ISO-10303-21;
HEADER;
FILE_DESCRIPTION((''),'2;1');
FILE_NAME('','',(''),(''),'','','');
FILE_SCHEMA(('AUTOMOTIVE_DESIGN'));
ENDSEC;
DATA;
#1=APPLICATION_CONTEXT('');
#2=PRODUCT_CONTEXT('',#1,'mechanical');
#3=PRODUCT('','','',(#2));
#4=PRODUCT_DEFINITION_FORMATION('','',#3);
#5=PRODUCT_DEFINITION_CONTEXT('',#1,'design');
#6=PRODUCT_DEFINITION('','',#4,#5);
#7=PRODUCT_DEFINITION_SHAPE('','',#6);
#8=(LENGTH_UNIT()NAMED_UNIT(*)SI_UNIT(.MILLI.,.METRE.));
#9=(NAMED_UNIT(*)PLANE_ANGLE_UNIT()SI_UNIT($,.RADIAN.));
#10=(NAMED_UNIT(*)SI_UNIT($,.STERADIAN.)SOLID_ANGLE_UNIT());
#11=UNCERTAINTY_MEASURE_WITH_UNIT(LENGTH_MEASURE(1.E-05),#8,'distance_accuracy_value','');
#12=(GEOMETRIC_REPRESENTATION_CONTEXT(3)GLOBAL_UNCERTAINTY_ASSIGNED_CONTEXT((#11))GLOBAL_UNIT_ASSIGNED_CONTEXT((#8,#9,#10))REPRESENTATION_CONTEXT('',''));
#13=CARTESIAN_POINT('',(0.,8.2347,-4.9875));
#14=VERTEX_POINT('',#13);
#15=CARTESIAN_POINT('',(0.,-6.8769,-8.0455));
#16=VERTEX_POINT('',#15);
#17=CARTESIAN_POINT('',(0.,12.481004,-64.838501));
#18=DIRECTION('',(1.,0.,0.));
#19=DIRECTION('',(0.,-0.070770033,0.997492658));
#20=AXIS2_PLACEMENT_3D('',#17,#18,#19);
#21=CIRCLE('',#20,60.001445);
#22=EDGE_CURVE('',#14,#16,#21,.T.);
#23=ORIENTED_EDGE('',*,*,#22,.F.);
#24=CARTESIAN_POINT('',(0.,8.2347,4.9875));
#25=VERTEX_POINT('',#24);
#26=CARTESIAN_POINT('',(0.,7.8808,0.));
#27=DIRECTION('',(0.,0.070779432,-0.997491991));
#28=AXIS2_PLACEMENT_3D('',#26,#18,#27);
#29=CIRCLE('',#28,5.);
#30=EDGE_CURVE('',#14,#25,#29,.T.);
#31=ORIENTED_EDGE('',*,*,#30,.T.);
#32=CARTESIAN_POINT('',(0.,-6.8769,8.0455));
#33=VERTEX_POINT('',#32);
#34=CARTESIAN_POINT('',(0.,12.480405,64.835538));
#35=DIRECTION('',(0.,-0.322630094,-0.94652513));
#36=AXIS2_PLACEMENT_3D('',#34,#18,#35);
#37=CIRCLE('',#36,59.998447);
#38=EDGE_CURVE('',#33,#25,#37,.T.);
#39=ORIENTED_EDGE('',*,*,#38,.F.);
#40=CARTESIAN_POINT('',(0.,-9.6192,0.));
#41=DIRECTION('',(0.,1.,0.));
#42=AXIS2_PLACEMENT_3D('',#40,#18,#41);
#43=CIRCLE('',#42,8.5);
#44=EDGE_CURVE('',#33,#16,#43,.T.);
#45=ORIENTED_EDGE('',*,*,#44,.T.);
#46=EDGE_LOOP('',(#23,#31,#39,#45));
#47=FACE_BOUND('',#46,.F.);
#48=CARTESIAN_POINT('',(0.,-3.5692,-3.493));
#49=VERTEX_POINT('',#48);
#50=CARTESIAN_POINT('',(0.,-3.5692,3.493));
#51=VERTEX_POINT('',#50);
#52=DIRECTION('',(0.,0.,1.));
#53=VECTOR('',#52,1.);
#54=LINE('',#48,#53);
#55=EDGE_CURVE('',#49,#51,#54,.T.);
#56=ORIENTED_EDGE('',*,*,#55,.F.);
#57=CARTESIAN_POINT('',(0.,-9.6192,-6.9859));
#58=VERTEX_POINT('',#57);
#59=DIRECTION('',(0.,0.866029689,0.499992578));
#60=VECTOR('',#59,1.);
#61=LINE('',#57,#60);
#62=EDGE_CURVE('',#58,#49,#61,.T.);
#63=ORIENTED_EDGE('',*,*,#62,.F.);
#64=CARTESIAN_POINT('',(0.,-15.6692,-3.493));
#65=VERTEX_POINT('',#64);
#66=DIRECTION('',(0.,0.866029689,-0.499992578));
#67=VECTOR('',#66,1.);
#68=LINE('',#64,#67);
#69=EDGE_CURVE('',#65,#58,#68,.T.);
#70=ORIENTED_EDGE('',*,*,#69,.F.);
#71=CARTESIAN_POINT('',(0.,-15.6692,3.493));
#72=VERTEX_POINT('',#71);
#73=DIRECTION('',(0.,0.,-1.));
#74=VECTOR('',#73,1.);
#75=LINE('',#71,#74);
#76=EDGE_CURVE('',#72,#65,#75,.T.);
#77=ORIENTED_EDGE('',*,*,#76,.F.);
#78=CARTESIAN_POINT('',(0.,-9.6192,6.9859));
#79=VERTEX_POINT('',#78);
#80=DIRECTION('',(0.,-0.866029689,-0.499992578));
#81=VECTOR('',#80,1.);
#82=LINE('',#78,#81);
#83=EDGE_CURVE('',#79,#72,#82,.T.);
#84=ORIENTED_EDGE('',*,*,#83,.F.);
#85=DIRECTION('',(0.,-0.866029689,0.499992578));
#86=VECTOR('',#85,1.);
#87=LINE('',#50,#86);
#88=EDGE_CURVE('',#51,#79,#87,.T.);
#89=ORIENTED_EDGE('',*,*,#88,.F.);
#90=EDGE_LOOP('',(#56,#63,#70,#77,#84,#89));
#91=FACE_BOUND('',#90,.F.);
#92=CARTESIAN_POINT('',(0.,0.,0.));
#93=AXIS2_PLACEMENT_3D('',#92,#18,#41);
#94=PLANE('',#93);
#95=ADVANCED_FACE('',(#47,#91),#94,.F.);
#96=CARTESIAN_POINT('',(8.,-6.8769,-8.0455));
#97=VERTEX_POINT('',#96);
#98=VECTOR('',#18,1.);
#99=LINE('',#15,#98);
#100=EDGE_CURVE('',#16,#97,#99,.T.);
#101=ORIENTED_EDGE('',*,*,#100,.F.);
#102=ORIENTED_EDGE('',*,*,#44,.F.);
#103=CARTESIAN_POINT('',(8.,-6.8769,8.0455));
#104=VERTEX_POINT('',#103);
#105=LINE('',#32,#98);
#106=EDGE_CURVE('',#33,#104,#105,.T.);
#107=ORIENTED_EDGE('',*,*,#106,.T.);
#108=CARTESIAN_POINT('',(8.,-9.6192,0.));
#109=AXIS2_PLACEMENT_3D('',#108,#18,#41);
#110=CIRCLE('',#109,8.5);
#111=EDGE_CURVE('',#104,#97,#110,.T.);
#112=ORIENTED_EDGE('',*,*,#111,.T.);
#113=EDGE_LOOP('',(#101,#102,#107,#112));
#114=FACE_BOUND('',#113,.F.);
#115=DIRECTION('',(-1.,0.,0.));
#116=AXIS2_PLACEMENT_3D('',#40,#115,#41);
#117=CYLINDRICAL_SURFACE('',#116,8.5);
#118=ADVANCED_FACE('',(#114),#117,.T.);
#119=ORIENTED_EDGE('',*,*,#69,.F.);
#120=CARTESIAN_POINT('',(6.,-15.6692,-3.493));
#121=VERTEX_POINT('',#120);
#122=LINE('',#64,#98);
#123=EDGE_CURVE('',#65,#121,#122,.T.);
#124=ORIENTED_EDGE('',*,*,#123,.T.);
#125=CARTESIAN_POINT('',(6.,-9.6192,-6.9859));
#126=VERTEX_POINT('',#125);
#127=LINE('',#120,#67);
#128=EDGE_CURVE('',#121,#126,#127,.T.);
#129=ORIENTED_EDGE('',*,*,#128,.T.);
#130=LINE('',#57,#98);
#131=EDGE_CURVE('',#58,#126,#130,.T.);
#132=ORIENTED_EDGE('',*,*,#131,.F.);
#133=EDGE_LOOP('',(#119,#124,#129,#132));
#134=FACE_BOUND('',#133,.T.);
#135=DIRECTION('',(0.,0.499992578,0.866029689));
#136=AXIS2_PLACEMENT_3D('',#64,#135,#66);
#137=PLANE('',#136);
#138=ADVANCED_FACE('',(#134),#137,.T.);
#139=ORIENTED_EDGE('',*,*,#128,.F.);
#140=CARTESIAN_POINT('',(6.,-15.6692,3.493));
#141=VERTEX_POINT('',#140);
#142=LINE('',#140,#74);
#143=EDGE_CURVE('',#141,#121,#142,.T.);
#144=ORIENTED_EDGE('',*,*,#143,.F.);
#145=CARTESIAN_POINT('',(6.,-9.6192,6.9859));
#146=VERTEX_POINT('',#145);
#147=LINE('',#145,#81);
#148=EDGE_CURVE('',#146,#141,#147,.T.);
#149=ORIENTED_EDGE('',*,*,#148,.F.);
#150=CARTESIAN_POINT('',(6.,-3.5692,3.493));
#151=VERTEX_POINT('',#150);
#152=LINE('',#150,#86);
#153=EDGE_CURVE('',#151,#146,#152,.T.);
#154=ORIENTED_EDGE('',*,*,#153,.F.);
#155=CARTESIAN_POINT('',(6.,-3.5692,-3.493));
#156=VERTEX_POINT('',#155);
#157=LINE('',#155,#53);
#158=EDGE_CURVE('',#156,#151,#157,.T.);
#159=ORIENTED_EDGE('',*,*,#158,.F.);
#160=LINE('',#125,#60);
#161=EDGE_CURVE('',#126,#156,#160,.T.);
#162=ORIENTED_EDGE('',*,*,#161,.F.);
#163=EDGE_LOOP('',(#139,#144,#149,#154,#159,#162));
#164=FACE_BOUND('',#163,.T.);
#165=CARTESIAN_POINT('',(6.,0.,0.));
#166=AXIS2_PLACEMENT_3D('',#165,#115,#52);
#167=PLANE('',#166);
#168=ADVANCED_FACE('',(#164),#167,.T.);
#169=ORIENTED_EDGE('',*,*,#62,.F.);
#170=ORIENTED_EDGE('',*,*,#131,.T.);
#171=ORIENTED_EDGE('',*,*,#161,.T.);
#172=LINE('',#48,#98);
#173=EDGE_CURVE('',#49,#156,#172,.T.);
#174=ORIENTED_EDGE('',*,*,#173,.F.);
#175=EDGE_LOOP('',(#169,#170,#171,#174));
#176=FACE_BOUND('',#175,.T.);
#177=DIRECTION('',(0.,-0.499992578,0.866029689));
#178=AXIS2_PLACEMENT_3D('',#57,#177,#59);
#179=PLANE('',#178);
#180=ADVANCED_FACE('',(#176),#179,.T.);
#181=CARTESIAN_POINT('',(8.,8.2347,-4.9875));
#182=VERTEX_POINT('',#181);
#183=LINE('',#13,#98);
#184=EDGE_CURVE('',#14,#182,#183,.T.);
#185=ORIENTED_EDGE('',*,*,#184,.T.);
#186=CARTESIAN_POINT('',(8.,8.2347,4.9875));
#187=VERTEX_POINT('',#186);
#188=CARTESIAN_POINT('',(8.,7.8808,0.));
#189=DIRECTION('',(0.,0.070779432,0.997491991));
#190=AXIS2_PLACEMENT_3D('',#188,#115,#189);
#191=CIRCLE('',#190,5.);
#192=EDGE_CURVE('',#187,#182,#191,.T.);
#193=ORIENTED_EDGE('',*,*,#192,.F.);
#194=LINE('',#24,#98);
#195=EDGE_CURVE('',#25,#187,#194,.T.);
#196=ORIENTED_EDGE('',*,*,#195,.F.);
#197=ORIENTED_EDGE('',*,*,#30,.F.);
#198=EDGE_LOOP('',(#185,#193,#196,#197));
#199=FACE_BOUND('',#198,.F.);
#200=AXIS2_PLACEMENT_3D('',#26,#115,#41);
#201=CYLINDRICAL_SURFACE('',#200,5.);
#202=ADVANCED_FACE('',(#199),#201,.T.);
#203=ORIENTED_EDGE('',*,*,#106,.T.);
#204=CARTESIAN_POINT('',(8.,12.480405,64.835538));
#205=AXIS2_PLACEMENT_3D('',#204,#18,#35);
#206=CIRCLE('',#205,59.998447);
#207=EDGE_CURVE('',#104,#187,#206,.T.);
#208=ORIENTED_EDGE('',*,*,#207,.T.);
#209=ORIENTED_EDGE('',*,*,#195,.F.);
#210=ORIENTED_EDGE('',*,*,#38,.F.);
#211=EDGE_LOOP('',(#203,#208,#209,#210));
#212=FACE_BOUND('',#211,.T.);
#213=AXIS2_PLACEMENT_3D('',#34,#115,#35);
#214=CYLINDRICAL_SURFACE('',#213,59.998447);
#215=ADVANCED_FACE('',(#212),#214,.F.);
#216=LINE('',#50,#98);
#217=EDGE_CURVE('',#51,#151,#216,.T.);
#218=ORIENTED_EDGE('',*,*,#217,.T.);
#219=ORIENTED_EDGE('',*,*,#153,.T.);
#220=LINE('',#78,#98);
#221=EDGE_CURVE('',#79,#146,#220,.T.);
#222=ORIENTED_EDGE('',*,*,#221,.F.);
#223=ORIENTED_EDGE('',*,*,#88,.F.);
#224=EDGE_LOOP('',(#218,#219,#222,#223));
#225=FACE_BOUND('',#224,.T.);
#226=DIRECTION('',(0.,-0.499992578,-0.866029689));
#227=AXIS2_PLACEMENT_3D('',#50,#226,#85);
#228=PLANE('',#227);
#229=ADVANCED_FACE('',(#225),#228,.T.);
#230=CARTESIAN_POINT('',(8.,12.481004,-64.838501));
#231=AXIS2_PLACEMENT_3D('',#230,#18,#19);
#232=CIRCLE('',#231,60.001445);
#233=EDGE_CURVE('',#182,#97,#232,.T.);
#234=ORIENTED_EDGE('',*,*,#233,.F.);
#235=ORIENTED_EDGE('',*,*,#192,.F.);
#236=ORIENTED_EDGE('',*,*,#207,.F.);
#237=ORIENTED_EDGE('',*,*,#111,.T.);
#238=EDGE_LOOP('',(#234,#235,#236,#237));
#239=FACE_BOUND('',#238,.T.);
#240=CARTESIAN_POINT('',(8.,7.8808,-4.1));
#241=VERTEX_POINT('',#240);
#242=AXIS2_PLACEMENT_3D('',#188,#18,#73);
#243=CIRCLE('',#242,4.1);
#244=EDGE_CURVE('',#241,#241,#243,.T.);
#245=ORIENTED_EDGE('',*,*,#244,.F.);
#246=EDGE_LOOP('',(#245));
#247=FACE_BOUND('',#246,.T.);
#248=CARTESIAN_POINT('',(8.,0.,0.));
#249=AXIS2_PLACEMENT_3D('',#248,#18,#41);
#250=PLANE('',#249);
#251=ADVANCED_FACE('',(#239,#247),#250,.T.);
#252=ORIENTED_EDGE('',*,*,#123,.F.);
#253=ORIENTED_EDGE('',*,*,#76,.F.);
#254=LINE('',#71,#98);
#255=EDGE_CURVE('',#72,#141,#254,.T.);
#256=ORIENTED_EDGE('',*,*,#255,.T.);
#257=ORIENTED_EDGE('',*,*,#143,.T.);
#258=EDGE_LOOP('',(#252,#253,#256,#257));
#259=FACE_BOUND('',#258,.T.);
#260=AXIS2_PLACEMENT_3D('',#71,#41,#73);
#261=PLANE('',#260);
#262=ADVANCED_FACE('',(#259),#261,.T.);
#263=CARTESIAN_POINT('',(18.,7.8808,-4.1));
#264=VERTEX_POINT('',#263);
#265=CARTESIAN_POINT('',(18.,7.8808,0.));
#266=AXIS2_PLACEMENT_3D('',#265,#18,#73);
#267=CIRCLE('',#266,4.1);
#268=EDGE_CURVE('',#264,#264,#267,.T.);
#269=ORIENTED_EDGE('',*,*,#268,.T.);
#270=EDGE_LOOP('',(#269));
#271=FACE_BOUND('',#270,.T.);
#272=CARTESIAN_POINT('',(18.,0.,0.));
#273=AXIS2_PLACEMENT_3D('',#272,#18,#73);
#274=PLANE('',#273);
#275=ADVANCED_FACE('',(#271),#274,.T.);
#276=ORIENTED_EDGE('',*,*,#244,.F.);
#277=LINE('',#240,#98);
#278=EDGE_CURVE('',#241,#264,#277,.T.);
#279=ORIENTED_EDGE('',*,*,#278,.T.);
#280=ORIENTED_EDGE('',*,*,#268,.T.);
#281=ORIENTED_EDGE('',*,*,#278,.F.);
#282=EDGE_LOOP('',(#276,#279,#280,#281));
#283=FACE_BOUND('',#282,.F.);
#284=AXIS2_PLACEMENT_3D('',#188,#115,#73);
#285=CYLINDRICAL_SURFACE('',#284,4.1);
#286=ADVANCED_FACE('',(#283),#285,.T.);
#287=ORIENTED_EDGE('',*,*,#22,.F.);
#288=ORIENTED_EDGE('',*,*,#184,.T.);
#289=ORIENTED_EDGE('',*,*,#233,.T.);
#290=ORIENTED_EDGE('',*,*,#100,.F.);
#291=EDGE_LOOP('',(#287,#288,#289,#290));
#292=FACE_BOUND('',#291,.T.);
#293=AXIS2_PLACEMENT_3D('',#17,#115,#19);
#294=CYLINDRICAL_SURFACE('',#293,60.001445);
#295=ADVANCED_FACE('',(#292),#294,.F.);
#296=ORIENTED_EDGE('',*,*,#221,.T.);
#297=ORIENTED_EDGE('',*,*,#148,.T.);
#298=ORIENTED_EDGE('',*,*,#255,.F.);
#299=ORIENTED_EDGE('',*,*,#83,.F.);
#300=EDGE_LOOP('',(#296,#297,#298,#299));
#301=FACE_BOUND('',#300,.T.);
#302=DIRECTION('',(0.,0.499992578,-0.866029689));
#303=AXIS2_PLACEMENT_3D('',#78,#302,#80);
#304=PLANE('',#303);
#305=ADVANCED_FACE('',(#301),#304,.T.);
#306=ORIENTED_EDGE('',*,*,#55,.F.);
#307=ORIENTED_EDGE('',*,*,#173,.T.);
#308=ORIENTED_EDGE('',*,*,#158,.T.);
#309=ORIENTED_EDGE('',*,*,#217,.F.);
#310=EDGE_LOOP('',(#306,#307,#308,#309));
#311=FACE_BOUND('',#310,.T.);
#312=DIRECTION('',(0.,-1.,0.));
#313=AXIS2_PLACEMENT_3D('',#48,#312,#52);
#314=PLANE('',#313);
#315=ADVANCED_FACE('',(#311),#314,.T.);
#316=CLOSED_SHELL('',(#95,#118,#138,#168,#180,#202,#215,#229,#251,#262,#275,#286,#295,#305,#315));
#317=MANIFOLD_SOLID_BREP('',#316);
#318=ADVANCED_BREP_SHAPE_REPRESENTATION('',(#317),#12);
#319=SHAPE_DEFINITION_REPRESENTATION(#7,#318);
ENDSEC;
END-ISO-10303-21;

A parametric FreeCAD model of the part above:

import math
import FreeCAD as App
import Part
import Sketcher
from FreeCAD import Vector
Q = App.Units.Quantity

doc = App.newDocument("Part")
body = doc.addObject("PartDesign::Body", "Body")

sketch1 = body.newObject("Sketcher::SketchObject", "Sketch")
sketch1.AttachmentSupport = (doc.getObject("YZ_Plane"), [""])
sketch1.MapMode = "FlatFace"
sketch1.addGeometry([
    Part.ArcOfCircle(Part.Circle(Vector(7.8808, 0, 0), Vector(0, 0, 1), 5), math.radians(-85.941244), math.radians(85.941244)),
    Part.ArcOfCircle(Part.Circle(Vector(12.480405, 64.835538, 0), Vector(0, 0, 1), 59.998447), math.radians(-108.822057), math.radians(-94.057846)),
    Part.ArcOfCircle(Part.Circle(Vector(-9.6192, 0, 0), Vector(0, 0, 1), 8.5), math.radians(71.178379), math.radians(288.821621)),
    Part.ArcOfCircle(Part.Circle(Vector(12.481004, -64.838501, 0), Vector(0, 0, 1), 60.001445), math.radians(94.058217), math.radians(108.821686)),
], False)
sketch1.addConstraint([
    Sketcher.Constraint("Coincident", 0, 2, 1, 2),
    Sketcher.Constraint("Coincident", 1, 1, 2, 1),
    Sketcher.Constraint("Coincident", 2, 2, 3, 2),
    Sketcher.Constraint("Coincident", 3, 1, 0, 1),
    Sketcher.Constraint("PointOnObject", 0, 3, -1),
    Sketcher.Constraint("PointOnObject", 2, 3, -1),
    Sketcher.Constraint("Radius", 0, Q("5 mm")),
    Sketcher.Constraint("Radius", 2, Q("8.5 mm")),
    Sketcher.Constraint("DistanceX", 2, 3, 0, 3, Q("17.5 mm")),
    Sketcher.Constraint("Radius", 1, Q("59.9984 mm")),
    Sketcher.Constraint("Radius", 3, Q("60.0014 mm")),
    Sketcher.Constraint("DistanceY", 1, 1, 1, 3, Q("56.79 mm")),
    Sketcher.Constraint("DistanceX", -1, 1, 3, 3, Q("12.481 mm")),
    Sketcher.Constraint("DistanceX", 2, 2, -1, 1, Q("6.877 mm")),
    Sketcher.Constraint("DistanceX", 0, 3, 0, 2, Q("0.354 mm")),
    Sketcher.Constraint("DistanceX", 0, 3, 3, 1, Q("0.354 mm")),
])
pad1 = body.newObject("PartDesign::Pad", "Pad")
pad1.Profile = sketch1
pad1.Length = 8

sketch2 = body.newObject("Sketcher::SketchObject", "Sketch001")
sketch2.AttachmentSupport = (doc.getObject("YZ_Plane"), [""])
sketch2.MapMode = "FlatFace"
sketch2.AttachmentOffset = App.Placement(Vector(0, 0, 8), App.Rotation())
sketch2.addGeometry(Part.Circle(Vector(7.8808, 0, 0), Vector(0, 0, 1), 4.1), False)
sketch2.addConstraint([
    Sketcher.Constraint("PointOnObject", 0, 3, -1),
    Sketcher.Constraint("Diameter", 0, Q("8.2 mm")),
    Sketcher.Constraint("DistanceX", -1, 1, 0, 3, Q("7.8808 mm")),
])
pad2 = body.newObject("PartDesign::Pad", "Pad001")
pad2.Profile = sketch2
pad2.Length = 10

sketch3 = body.newObject("Sketcher::SketchObject", "Sketch002")
sketch3.AttachmentSupport = (doc.getObject("YZ_Plane"), [""])
sketch3.MapMode = "FlatFace"
sketch3.addGeometry([
    Part.LineSegment(Vector(-3.5692, -3.493, 0), Vector(-9.6192, -6.9859, 0)),
    Part.LineSegment(Vector(-9.6192, -6.9859, 0), Vector(-15.6692, -3.493, 0)),
    Part.LineSegment(Vector(-15.6692, -3.493, 0), Vector(-15.6692, 3.493, 0)),
    Part.LineSegment(Vector(-15.6692, 3.493, 0), Vector(-9.6192, 6.9859, 0)),
    Part.LineSegment(Vector(-9.6192, 6.9859, 0), Vector(-3.5692, 3.493, 0)),
    Part.LineSegment(Vector(-3.5692, 3.493, 0), Vector(-3.5692, -3.493, 0)),
], False)
sketch3.addConstraint([
    Sketcher.Constraint("Coincident", 0, 2, 1, 1),
    Sketcher.Constraint("Coincident", 1, 2, 2, 1),
    Sketcher.Constraint("Coincident", 2, 2, 3, 1),
    Sketcher.Constraint("Coincident", 3, 2, 4, 1),
    Sketcher.Constraint("Coincident", 4, 2, 5, 1),
    Sketcher.Constraint("Coincident", 5, 2, 0, 1),
    Sketcher.Constraint("Vertical", 2),
    Sketcher.Constraint("Vertical", 5),
    Sketcher.Constraint("Symmetric", 0, 2, 3, 2, -1),
    Sketcher.Constraint("Parallel", 0, 3),
    Sketcher.Constraint("Parallel", 1, 4),
    Sketcher.Constraint("Horizontal", 2, 2, 4, 2),
    Sketcher.Constraint("Horizontal", 1, 2, 5, 2),
    Sketcher.Constraint("DistanceX", 2, 2, 4, 2, Q("12.1 mm")),
    Sketcher.Constraint("Angle", 0, Q("-150.0005 deg")),
    Sketcher.Constraint("DistanceY", 2, 1, 2, 2, Q("6.986 mm")),
    Sketcher.Constraint("DistanceX", 0, 2, -1, 1, Q("9.6192 mm")),
])
pocket1 = body.newObject("PartDesign::Pocket", "Pocket")
pocket1.Profile = sketch3
pocket1.Length = 6
pocket1.Reversed = True

doc.recompute()
